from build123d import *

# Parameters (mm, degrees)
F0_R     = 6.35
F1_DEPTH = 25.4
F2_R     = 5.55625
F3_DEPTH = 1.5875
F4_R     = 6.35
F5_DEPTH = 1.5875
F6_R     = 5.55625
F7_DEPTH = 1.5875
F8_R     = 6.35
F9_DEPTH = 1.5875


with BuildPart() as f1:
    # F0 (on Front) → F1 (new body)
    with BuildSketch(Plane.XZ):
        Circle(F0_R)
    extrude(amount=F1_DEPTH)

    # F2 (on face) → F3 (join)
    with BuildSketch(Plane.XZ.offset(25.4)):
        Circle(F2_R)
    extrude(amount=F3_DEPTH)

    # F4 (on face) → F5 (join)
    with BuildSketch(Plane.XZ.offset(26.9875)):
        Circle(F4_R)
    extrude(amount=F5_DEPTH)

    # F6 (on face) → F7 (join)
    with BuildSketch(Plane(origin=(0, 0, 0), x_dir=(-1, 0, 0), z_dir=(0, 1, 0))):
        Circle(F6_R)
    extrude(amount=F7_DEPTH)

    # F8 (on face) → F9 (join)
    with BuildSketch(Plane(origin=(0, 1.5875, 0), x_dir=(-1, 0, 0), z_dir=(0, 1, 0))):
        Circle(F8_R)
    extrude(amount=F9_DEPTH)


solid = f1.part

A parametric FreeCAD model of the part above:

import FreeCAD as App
import Part
import Sketcher
from FreeCAD import Vector
Q = App.Units.Quantity

doc = App.newDocument("Part")
body = doc.addObject("PartDesign::Body", "Body")

sketch1 = body.newObject("Sketcher::SketchObject", "Sketch")
sketch1.AttachmentSupport = (doc.getObject("XZ_Plane"), [""])
sketch1.MapMode = "FlatFace"
sketch1.addGeometry(Part.Circle(Vector(0, 0, 0), Vector(0, 0, 1), 6.35), False)
sketch1.addConstraint(Sketcher.Constraint("Coincident", 0, 3, -1, 1))
sketch1.addConstraint(Sketcher.Constraint("Diameter", 0, Q("0.5 in")))
pad1 = body.newObject("PartDesign::Pad", "Pad")
pad1.Profile = sketch1
pad1.Length = Q("1 in")

sketch2 = body.newObject("Sketcher::SketchObject", "Sketch001")
sketch2.AttachmentSupport = (doc.getObject("XZ_Plane"), [""])
sketch2.MapMode = "FlatFace"
sketch2.AttachmentOffset = App.Placement(Vector(0, 0, 1 * 25.4), App.Rotation())
sketch2.addGeometry(Part.Circle(Vector(0, 0, 0), Vector(0, 0, 1), 5.55625), False)
sketch2.addConstraint(Sketcher.Constraint("Coincident", 0, 3, -1, 1))
sketch2.addConstraint(Sketcher.Constraint("Diameter", 0, Q("0.4375 in")))
pad2 = body.newObject("PartDesign::Pad", "Pad001")
pad2.Profile = sketch2
pad2.Length = Q("0.0625 in")

sketch3 = body.newObject("Sketcher::SketchObject", "Sketch002")
sketch3.AttachmentSupport = (doc.getObject("XZ_Plane"), [""])
sketch3.MapMode = "FlatFace"
sketch3.AttachmentOffset = App.Placement(Vector(0, 0, 1.0625 * 25.4), App.Rotation())
sketch3.addGeometry(Part.Circle(Vector(0, 0, 0), Vector(0, 0, 1), 6.35), False)
sketch3.addConstraint(Sketcher.Constraint("Coincident", 0, 3, -1, 1))
sketch3.addConstraint(Sketcher.Constraint("Diameter", 0, Q("0.5 in")))
pad3 = body.newObject("PartDesign::Pad", "Pad002")
pad3.Profile = sketch3
pad3.Length = Q("0.0625 in")

sketch4 = body.newObject("Sketcher::SketchObject", "Sketch003")
sketch4.AttachmentSupport = (doc.getObject("XZ_Plane"), [""])
sketch4.MapMode = "FlatFace"
sketch4.addGeometry(Part.Circle(Vector(0, 0, 0), Vector(0, 0, 1), 5.55625), False)
sketch4.addConstraint(Sketcher.Constraint("Coincident", 0, 3, -1, 1))
sketch4.addConstraint(Sketcher.Constraint("Diameter", 0, Q("0.4375 in")))
pad4 = body.newObject("PartDesign::Pad", "Pad003")
pad4.Profile = sketch4
pad4.Length = Q("0.0625 in")
pad4.Reversed = True

sketch5 = body.newObject("Sketcher::SketchObject", "Sketch004")
sketch5.AttachmentSupport = (doc.getObject("XZ_Plane"), [""])
sketch5.MapMode = "FlatFace"
sketch5.AttachmentOffset = App.Placement(Vector(0, 0, -0.0625 * 25.4), App.Rotation())
sketch5.addGeometry(Part.Circle(Vector(0, 0, 0), Vector(0, 0, 1), 6.35), False)
sketch5.addConstraint(Sketcher.Constraint("Coincident", 0, 3, -1, 1))
sketch5.addConstraint(Sketcher.Constraint("Diameter", 0, Q("0.5 in")))
pad5 = body.newObject("PartDesign::Pad", "Pad004")
pad5.Profile = sketch5
pad5.Length = Q("0.0625 in")
pad5.Reversed = True

doc.recompute()
